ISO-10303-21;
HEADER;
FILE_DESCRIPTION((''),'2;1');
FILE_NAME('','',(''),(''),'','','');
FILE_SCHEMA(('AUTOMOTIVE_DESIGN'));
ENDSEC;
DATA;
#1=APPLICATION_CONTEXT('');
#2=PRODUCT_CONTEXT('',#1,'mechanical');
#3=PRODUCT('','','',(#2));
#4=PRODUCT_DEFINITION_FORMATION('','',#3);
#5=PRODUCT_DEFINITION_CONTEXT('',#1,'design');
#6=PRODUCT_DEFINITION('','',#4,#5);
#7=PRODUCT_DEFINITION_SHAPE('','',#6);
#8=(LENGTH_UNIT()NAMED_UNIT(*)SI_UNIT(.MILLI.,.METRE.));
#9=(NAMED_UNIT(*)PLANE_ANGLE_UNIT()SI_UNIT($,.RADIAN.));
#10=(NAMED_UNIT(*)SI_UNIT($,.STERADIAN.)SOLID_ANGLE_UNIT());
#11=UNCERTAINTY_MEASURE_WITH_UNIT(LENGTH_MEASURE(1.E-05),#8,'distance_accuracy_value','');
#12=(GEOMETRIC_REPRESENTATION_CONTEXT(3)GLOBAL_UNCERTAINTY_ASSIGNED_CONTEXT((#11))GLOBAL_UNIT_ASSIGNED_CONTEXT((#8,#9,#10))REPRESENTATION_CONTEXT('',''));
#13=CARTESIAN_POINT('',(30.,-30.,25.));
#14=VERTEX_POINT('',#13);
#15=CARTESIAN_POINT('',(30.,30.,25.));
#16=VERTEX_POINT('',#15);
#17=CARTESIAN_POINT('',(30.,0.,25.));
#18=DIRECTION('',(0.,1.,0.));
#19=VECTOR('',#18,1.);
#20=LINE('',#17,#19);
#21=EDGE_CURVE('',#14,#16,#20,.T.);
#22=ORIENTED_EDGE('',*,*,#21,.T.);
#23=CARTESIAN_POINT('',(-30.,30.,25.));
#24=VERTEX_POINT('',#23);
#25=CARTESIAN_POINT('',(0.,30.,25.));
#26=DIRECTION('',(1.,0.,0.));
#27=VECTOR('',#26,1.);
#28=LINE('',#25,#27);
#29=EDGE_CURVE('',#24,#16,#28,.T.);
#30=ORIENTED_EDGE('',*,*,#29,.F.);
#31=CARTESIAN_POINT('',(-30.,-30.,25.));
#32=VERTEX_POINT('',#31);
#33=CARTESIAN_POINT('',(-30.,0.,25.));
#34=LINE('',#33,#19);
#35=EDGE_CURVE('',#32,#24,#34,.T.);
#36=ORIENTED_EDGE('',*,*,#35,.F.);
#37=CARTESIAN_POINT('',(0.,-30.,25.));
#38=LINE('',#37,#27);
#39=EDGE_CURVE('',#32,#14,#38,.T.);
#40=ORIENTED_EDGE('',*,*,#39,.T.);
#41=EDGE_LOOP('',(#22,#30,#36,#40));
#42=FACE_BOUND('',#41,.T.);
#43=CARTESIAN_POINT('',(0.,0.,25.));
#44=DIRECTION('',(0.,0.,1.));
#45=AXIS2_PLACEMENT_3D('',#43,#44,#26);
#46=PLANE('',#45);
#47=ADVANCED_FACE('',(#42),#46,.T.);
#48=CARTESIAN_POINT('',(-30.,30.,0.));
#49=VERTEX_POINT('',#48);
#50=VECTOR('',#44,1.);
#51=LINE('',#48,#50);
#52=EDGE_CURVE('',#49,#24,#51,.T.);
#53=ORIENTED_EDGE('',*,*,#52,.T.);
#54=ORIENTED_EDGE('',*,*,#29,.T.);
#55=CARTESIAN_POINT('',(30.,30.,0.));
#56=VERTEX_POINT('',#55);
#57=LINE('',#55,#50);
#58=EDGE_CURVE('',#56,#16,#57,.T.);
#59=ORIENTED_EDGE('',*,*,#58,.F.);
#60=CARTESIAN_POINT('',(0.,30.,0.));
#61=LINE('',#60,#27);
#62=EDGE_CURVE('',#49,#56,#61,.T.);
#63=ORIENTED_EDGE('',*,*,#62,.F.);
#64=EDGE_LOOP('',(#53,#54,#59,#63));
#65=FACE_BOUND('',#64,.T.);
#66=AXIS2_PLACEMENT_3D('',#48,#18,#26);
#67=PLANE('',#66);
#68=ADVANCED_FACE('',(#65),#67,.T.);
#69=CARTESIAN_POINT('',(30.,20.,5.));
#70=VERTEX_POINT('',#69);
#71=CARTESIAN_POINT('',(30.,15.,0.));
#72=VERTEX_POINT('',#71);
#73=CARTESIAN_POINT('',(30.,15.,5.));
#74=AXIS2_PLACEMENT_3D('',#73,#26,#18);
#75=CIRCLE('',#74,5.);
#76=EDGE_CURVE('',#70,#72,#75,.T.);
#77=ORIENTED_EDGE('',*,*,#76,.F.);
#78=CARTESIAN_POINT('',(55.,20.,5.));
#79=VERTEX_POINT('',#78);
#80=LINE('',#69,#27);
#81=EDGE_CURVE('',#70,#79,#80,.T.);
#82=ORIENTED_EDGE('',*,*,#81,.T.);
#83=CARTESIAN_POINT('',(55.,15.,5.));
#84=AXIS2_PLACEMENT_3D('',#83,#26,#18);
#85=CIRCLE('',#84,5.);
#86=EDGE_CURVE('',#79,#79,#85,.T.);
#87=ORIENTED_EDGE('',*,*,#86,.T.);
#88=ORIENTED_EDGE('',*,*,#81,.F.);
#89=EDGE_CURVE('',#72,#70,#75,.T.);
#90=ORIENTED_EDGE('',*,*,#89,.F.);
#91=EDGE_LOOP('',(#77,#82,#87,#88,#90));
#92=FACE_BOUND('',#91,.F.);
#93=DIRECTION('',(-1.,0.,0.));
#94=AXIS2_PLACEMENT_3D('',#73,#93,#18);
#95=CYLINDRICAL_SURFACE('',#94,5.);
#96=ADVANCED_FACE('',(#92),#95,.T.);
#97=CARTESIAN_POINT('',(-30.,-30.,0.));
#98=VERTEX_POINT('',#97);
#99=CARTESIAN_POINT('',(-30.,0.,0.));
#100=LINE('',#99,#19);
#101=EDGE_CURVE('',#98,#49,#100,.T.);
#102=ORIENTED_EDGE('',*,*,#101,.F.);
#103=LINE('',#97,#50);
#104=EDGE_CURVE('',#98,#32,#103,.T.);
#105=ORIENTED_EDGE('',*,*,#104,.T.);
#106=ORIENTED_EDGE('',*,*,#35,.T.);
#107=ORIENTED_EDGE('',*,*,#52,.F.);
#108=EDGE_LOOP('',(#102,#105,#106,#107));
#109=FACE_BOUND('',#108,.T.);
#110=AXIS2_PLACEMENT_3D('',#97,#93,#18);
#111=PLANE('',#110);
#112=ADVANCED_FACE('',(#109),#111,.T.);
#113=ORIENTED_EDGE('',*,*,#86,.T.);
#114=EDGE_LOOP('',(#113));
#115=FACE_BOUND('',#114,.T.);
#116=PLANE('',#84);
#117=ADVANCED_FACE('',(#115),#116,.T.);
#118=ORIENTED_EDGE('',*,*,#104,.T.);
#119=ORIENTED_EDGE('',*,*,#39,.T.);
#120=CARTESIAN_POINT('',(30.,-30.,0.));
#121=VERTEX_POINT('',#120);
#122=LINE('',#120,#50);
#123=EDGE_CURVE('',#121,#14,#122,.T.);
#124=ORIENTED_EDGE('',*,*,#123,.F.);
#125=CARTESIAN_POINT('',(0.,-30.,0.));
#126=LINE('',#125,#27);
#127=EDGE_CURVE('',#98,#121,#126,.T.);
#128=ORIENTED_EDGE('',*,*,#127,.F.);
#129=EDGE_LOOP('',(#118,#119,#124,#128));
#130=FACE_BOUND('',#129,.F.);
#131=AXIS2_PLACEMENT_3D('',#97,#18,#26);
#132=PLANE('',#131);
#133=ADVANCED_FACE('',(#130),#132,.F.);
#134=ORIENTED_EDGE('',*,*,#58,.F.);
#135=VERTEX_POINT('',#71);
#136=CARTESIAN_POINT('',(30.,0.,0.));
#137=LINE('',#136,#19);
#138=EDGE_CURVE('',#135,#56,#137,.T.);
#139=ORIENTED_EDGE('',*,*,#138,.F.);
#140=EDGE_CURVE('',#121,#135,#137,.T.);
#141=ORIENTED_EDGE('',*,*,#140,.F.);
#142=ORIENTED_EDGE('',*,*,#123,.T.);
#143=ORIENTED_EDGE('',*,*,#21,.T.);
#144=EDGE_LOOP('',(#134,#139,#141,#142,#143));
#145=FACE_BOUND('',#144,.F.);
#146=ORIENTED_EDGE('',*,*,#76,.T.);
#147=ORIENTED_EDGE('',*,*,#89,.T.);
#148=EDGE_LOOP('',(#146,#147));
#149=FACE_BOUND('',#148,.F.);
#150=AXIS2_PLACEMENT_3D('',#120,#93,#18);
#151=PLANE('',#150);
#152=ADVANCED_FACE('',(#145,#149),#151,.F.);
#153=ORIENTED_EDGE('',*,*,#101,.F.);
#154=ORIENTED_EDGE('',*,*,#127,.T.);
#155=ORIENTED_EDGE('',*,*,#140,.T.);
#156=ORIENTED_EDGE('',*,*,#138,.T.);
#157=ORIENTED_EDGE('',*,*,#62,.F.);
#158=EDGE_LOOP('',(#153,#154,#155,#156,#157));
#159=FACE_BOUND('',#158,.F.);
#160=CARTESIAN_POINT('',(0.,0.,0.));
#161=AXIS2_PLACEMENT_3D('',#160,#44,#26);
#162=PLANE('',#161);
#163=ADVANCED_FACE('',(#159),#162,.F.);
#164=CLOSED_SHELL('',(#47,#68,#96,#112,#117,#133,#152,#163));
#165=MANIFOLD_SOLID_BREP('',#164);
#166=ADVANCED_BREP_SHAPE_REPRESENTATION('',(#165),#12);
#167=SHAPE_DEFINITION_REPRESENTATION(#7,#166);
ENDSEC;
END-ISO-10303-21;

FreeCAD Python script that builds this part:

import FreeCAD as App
import Part
import Sketcher
from FreeCAD import Vector
Q = App.Units.Quantity

doc = App.newDocument("Part")
body = doc.addObject("PartDesign::Body", "Body")

sketch1 = body.newObject("Sketcher::SketchObject", "Sketch")
sketch1.AttachmentSupport = (doc.getObject("XY_Plane"), [""])
sketch1.MapMode = "FlatFace"
sketch1.addGeometry([
    Part.LineSegment(Vector(-30, 30, 0), Vector(-30, -30, 0)),
    Part.LineSegment(Vector(-30, -30, 0), Vector(30, -30, 0)),
    Part.LineSegment(Vector(30, -30, 0), Vector(30, 30, 0)),
    Part.LineSegment(Vector(30, 30, 0), Vector(-30, 30, 0)),
], False)
sketch1.addConstraint([
    Sketcher.Constraint("Coincident", 0, 2, 1, 1),
    Sketcher.Constraint("Coincident", 1, 2, 2, 1),
    Sketcher.Constraint("Coincident", 2, 2, 3, 1),
    Sketcher.Constraint("Coincident", 3, 2, 0, 1),
    Sketcher.Constraint("Vertical", 0),
    Sketcher.Constraint("Horizontal", 1),
    Sketcher.Constraint("Vertical", 2),
    Sketcher.Constraint("Horizontal", 3),
    Sketcher.Constraint("Symmetric", 0, 2, 2, 2, -1, 1),
    Sketcher.Constraint("Equal", 3, 0),
    Sketcher.Constraint("DistanceX", 1, 1, 1, 2, Q("60 mm")),
])
pad1 = body.newObject("PartDesign::Pad", "Pad")
pad1.Profile = sketch1
pad1.Length = 25

sketch2 = body.newObject("Sketcher::SketchObject", "Sketch001")
sketch2.AttachmentSupport = (doc.getObject("YZ_Plane"), [""])
sketch2.MapMode = "FlatFace"
sketch2.AttachmentOffset = App.Placement(Vector(0, 0, 30), App.Rotation())
sketch2.addGeometry(Part.Circle(Vector(15, 5, 0), Vector(0, 0, 1), 5), False)
sketch2.addConstraint([
    Sketcher.Constraint("Diameter", 0, Q("10 mm")),
    Sketcher.Constraint("DistanceX", -1, 1, 0, 3, Q("15 mm")),
    Sketcher.Constraint("DistanceY", -1, 1, 0, 3, Q("5 mm")),
])
pad2 = body.newObject("PartDesign::Pad", "Pad001")
pad2.Profile = sketch2
pad2.Length = 25

doc.recompute()
